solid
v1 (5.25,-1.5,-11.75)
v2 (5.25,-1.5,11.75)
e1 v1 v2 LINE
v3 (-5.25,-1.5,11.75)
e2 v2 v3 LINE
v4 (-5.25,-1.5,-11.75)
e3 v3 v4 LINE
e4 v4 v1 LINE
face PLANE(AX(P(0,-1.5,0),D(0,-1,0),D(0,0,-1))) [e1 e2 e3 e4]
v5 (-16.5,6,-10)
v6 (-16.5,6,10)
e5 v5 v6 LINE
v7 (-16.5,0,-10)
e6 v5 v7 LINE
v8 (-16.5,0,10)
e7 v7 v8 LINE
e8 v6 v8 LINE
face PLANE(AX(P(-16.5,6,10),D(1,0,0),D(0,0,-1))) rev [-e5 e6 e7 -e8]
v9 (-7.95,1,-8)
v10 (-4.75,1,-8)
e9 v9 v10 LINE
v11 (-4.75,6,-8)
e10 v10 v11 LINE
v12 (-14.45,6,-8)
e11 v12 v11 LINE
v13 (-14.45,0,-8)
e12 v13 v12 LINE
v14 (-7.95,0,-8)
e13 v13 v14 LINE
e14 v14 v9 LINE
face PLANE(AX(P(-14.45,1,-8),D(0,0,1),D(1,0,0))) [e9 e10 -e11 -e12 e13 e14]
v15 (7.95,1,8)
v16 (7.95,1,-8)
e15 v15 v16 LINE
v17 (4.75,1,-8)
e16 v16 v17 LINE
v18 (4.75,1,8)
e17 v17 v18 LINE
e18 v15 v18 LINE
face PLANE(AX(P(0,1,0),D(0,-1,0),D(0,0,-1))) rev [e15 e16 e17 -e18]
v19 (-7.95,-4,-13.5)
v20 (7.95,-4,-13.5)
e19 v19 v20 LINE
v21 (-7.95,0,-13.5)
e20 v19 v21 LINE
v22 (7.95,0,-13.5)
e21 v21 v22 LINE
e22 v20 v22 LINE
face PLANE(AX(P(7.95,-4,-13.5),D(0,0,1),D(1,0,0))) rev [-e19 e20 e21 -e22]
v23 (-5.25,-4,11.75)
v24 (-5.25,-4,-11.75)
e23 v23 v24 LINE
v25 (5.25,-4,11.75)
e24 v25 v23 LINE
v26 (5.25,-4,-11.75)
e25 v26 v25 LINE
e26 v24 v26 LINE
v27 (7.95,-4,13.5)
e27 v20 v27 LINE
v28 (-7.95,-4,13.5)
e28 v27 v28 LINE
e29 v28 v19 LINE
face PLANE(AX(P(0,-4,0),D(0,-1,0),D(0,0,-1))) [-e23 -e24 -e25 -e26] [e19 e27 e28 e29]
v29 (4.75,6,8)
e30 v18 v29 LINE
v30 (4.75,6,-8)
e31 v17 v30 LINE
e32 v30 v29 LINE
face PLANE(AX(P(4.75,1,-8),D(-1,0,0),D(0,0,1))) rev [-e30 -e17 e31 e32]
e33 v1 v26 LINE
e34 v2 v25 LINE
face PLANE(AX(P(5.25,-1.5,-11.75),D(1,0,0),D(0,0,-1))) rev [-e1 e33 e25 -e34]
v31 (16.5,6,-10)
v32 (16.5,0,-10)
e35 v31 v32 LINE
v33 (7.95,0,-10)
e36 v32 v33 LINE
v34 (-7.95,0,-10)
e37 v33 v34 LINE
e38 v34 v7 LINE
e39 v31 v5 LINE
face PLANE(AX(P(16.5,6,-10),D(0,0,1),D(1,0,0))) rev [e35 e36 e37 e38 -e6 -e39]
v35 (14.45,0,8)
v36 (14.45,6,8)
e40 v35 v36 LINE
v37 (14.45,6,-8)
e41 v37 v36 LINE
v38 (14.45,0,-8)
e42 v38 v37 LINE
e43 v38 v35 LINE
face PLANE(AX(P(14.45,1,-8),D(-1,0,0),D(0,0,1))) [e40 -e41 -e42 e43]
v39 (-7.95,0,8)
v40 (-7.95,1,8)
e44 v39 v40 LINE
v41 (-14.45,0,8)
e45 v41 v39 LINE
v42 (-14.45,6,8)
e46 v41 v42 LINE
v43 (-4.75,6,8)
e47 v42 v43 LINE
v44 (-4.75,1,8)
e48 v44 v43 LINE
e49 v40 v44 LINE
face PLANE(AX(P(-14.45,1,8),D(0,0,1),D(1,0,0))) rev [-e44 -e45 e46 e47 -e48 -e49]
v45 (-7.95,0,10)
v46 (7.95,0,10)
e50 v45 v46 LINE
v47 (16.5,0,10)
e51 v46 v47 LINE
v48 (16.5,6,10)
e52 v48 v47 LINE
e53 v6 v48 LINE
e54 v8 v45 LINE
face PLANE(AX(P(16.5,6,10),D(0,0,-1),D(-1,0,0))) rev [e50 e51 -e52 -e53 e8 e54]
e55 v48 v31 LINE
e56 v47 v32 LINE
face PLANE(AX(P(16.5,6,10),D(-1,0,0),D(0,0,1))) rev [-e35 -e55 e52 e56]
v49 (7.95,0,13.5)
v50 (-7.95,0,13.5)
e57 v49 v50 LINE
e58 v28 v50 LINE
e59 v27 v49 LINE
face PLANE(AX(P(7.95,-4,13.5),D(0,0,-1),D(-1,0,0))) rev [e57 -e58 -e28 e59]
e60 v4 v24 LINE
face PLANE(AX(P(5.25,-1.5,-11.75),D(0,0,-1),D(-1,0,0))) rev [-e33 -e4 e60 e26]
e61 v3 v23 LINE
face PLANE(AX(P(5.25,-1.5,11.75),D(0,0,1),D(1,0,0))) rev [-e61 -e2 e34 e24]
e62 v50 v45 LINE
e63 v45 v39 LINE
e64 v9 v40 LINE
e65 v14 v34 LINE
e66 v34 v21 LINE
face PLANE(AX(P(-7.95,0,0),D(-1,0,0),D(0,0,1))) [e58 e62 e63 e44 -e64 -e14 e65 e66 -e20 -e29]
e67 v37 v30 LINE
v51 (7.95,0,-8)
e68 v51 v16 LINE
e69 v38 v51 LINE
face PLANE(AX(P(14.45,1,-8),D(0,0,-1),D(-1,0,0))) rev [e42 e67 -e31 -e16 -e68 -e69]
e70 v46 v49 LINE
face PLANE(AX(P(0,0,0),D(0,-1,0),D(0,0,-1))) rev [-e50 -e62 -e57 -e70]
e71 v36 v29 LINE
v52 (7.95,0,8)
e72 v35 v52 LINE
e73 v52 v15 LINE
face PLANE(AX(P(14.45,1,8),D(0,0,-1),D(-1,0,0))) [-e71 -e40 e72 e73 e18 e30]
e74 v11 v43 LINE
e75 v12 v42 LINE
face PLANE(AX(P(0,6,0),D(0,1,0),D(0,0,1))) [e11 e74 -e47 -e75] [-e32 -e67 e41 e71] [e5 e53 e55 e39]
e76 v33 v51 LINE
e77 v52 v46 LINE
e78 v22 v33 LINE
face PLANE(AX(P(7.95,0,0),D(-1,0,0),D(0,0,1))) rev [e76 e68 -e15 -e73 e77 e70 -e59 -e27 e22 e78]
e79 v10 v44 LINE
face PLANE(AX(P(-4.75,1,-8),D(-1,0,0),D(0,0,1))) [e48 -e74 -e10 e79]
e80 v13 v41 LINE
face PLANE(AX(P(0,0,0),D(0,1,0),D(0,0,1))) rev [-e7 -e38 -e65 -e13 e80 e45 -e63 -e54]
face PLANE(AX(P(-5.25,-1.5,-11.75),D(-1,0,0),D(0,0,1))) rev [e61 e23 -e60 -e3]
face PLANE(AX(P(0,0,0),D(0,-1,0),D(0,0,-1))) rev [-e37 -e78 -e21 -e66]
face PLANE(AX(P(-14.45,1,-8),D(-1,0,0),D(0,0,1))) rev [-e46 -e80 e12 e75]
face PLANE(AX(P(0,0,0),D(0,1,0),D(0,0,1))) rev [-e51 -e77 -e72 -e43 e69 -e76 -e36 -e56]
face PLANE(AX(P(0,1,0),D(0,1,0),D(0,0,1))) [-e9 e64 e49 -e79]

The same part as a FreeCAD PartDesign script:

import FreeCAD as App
import Part
import Sketcher
from FreeCAD import Vector
Q = App.Units.Quantity

doc = App.newDocument("Part")
body = doc.addObject("PartDesign::Body", "Body")

sketch1 = doc.addObject("Sketcher::SketchObject", "Sketch")
body.addObject(sketch1)
sketch1.AttachmentSupport = (doc.XZ_Plane, [""])
sketch1.MapMode = "FlatFace"
sketch1.addGeometry([
    Part.LineSegment(Vector(-16, -10, 0), Vector(-16, 10, 0)),
    Part.LineSegment(Vector(-16, 10, 0), Vector(16, 10, 0)),
    Part.LineSegment(Vector(16, 10, 0), Vector(16, -10, 0)),
    Part.LineSegment(Vector(16, -10, 0), Vector(-16, -10, 0)),
], False)
sketch1.addConstraint([
    Sketcher.Constraint("Coincident", 0, 2, 1, 1),
    Sketcher.Constraint("Coincident", 1, 2, 2, 1),
    Sketcher.Constraint("Coincident", 2, 2, 3, 1),
    Sketcher.Constraint("Coincident", 3, 2, 0, 1),
    Sketcher.Constraint("Vertical", 0),
    Sketcher.Constraint("Horizontal", 1),
    Sketcher.Constraint("Vertical", 2),
    Sketcher.Constraint("Horizontal", 3),
    Sketcher.Constraint("Symmetric", 0, 2, 2, 2, -1, 1),
    Sketcher.Constraint("DistanceX", 1, 1, 1, 2, Q("33 mm")),
    Sketcher.Constraint("DistanceY", 0, 1, 0, 2, Q("20 mm")),
])
pad1 = doc.addObject("PartDesign::Pad", "Pad")
body.addObject(pad1)
pad1.Profile = sketch1
pad1.Length = 6
pad1.Reversed = True

sketch2 = doc.addObject("Sketcher::SketchObject", "Sketch001")
body.addObject(sketch2)
sketch2.AttachmentSupport = (doc.XZ_Plane, [""])
sketch2.MapMode = "FlatFace"
sketch2.AttachmentOffset = App.Placement(Vector(0, 0, -6), App.Rotation())
sketch2.addGeometry([
    Part.LineSegment(Vector(-14, -8, 0), Vector(-14, 8, 0)),
    Part.LineSegment(Vector(-14, 8, 0), Vector(-5, 8, 0)),
    Part.LineSegment(Vector(-5, 8, 0), Vector(-5, -8, 0)),
    Part.LineSegment(Vector(-5, -8, 0), Vector(-14, -8, 0)),
    Part.LineSegment(Vector(5, -8, 0), Vector(5, 8, 0)),
    Part.LineSegment(Vector(5, 8, 0), Vector(14, 8, 0)),
    Part.LineSegment(Vector(14, 8, 0), Vector(14, -8, 0)),
    Part.LineSegment(Vector(14, -8, 0), Vector(5, -8, 0)),
], False)
sketch2.addConstraint([
    Sketcher.Constraint("Coincident", 0, 2, 1, 1),
    Sketcher.Constraint("Coincident", 1, 2, 2, 1),
    Sketcher.Constraint("Coincident", 2, 2, 3, 1),
    Sketcher.Constraint("Coincident", 3, 2, 0, 1),
    Sketcher.Constraint("Coincident", 4, 2, 5, 1),
    Sketcher.Constraint("Coincident", 5, 2, 6, 1),
    Sketcher.Constraint("Coincident", 6, 2, 7, 1),
    Sketcher.Constraint("Coincident", 7, 2, 4, 1),
    Sketcher.Constraint("Vertical", 0),
    Sketcher.Constraint("Horizontal", 1),
    Sketcher.Constraint("Vertical", 2),
    Sketcher.Constraint("Horizontal", 3),
    Sketcher.Constraint("Vertical", 4),
    Sketcher.Constraint("Horizontal", 5),
    Sketcher.Constraint("Vertical", 6),
    Sketcher.Constraint("Horizontal", 7),
    Sketcher.Constraint("Symmetric", 2, 2, 4, 2, -1, 1),
    Sketcher.Constraint("Symmetric", 0, 2, 6, 2, -1, 1),
    Sketcher.Constraint("Horizontal", 1, 2, 4, 2),
    Sketcher.Constraint("DistanceY", 0, 1, 0, 2, Q("16 mm")),
    Sketcher.Constraint("DistanceX", 1, 1, 1, 2, Q("9.7 mm")),
    Sketcher.Constraint("DistanceX", 1, 2, 4, 2, Q("9.5 mm")),
])
pocket1 = doc.addObject("PartDesign::Pocket", "Pocket")
body.addObject(pocket1)
pocket1.Profile = sketch2
pocket1.Length = 5
pocket1.Reversed = True

sketch3 = doc.addObject("Sketcher::SketchObject", "Sketch002")
body.addObject(sketch3)
sketch3.AttachmentSupport = (doc.XZ_Plane, [""])
sketch3.MapMode = "FlatFace"
sketch3.AttachmentOffset = App.Placement(Vector(0, 0, -6), App.Rotation())
sketch3.addGeometry([
    Part.LineSegment(Vector(-14, -8, 0), Vector(-14, 8, 0)),
    Part.LineSegment(Vector(-14, 8, 0), Vector(-8, 8, 0)),
    Part.LineSegment(Vector(-8, 8, 0), Vector(-8, -8, 0)),
    Part.LineSegment(Vector(-8, -8, 0), Vector(-14, -8, 0)),
    Part.LineSegment(Vector(8, -8, 0), Vector(8, 8, 0)),
    Part.LineSegment(Vector(8, 8, 0), Vector(14, 8, 0)),
    Part.LineSegment(Vector(14, 8, 0), Vector(14, -8, 0)),
    Part.LineSegment(Vector(14, -8, 0), Vector(8, -8, 0)),
], False)
sketch3.addConstraint([
    Sketcher.Constraint("Coincident", 0, 2, 1, 1),
    Sketcher.Constraint("Coincident", 1, 2, 2, 1),
    Sketcher.Constraint("Coincident", 2, 2, 3, 1),
    Sketcher.Constraint("Coincident", 3, 2, 0, 1),
    Sketcher.Constraint("Coincident", 4, 2, 5, 1),
    Sketcher.Constraint("Coincident", 5, 2, 6, 1),
    Sketcher.Constraint("Coincident", 6, 2, 7, 1),
    Sketcher.Constraint("Coincident", 7, 2, 4, 1),
    Sketcher.Constraint("Vertical", 0),
    Sketcher.Constraint("Horizontal", 1),
    Sketcher.Constraint("Vertical", 2),
    Sketcher.Constraint("Horizontal", 3),
    Sketcher.Constraint("Vertical", 4),
    Sketcher.Constraint("Horizontal", 5),
    Sketcher.Constraint("Vertical", 6),
    Sketcher.Constraint("Horizontal", 7),
    Sketcher.Constraint("Symmetric", 2, 2, 4, 2, -1, 1),
    Sketcher.Constraint("Symmetric", 0, 2, 6, 2, -1, 1),
    Sketcher.Constraint("Horizontal", 1, 2, 4, 2),
    Sketcher.Constraint("DistanceY", 0, 1, 0, 2, Q("16 mm")),
    Sketcher.Constraint("DistanceX", 1, 1, 1, 2, Q("6.5 mm")),
    Sketcher.Constraint("DistanceX", 1, 2, 4, 2, Q("15.9 mm")),
])
pocket2 = doc.addObject("PartDesign::Pocket", "Pocket001")
body.addObject(pocket2)
pocket2.Profile = sketch3
pocket2.Type = "ThroughAll"
pocket2.Reversed = True

sketch4 = doc.addObject("Sketcher::SketchObject", "Sketch003")
body.addObject(sketch4)
sketch4.AttachmentSupport = (doc.XZ_Plane, [""])
sketch4.MapMode = "FlatFace"
sketch4.addGeometry([
    Part.LineSegment(Vector(-8, 14, 0), Vector(-8, -14, 0)),
    Part.LineSegment(Vector(-8, -14, 0), Vector(8, -14, 0)),
    Part.LineSegment(Vector(8, -14, 0), Vector(8, 14, 0)),
    Part.LineSegment(Vector(8, 14, 0), Vector(-8, 14, 0)),
], False)
sketch4.addConstraint([
    Sketcher.Constraint("Coincident", 0, 2, 1, 1),
    Sketcher.Constraint("Coincident", 1, 2, 2, 1),
    Sketcher.Constraint("Coincident", 2, 2, 3, 1),
    Sketcher.Constraint("Coincident", 3, 2, 0, 1),
    Sketcher.Constraint("Vertical", 0),
    Sketcher.Constraint("Horizontal", 1),
    Sketcher.Constraint("Vertical", 2),
    Sketcher.Constraint("Horizontal", 3),
    Sketcher.Constraint("Symmetric", 0, 2, 2, 2, -1, 1),
    Sketcher.Constraint("DistanceY", 0, 2, 0, 1, Q("27 mm")),
    Sketcher.Constraint("DistanceX", 1, 1, 1, 2, Q("15.9 mm")),
])
pad2 = doc.addObject("PartDesign::Pad", "Pad001")
body.addObject(pad2)
pad2.Profile = sketch4
pad2.Length = 4

sketch5 = doc.addObject("Sketcher::SketchObject", "Sketch004")
body.addObject(sketch5)
sketch5.AttachmentSupport = (doc.XZ_Plane, [""])
sketch5.MapMode = "FlatFace"
sketch5.AttachmentOffset = App.Placement(Vector(0, 0, 4), App.Rotation())
sketch5.addGeometry([
    Part.LineSegment(Vector(-5, 12, 0), Vector(-5, -12, 0)),
    Part.LineSegment(Vector(-5, -12, 0), Vector(5, -12, 0)),
    Part.LineSegment(Vector(5, -12, 0), Vector(5, 12, 0)),
    Part.LineSegment(Vector(5, 12, 0), Vector(-5, 12, 0)),
], False)
sketch5.addConstraint([
    Sketcher.Constraint("Coincident", 0, 2, 1, 1),
    Sketcher.Constraint("Coincident", 1, 2, 2, 1),
    Sketcher.Constraint("Coincident", 2, 2, 3, 1),
    Sketcher.Constraint("Coincident", 3, 2, 0, 1),
    Sketcher.Constraint("Vertical", 0),
    Sketcher.Constraint("Horizontal", 1),
    Sketcher.Constraint("Vertical", 2),
    Sketcher.Constraint("Horizontal", 3),
    Sketcher.Constraint("Symmetric", 0, 2, 2, 2, -1, 1),
    Sketcher.Constraint("DistanceX", 1, 1, 1, 2, Q("10.5 mm")),
    Sketcher.Constraint("DistanceY", 0, 2, 0, 1, Q("23.5 mm")),
])
pocket3 = doc.addObject("PartDesign::Pocket", "Pocket002")
body.addObject(pocket3)
pocket3.Profile = sketch5
pocket3.Length = 2.5

doc.recompute()
